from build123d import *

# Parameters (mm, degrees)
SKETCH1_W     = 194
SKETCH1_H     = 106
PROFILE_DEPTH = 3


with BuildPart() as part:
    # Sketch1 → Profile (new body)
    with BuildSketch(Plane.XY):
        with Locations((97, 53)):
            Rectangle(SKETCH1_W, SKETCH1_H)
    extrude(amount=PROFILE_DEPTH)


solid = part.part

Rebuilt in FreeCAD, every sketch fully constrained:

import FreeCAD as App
import Part
import Sketcher
from FreeCAD import Vector

doc = App.newDocument("Part")
body = doc.addObject("PartDesign::Body", "Body")

# Sketch on XY plane
sketch1 = body.newObject("Sketcher::SketchObject", "Sketch")
sketch1.AttachmentSupport = (doc.getObject("XY_Plane"), [""])
sketch1.MapMode = "FlatFace"
sketch1.addGeometry([
    Part.LineSegment(Vector(0, 106, 0), Vector(0, 0, 0)),
    Part.LineSegment(Vector(0, 0, 0), Vector(194, 0, 0)),
    Part.LineSegment(Vector(194, 0, 0), Vector(194, 106, 0)),
    Part.LineSegment(Vector(194, 106, 0), Vector(0, 106, 0)),
], False)
sketch1.addConstraint([
    Sketcher.Constraint("Coincident", 0, 2, 1, 1),
    Sketcher.Constraint("Coincident", 1, 2, 2, 1),
    Sketcher.Constraint("Coincident", 2, 2, 3, 1),
    Sketcher.Constraint("Coincident", 3, 2, 0, 1),
    Sketcher.Constraint("Vertical", 0),
    Sketcher.Constraint("Horizontal", 1),
    Sketcher.Constraint("Vertical", 2),
    Sketcher.Constraint("Horizontal", 3),
    Sketcher.Constraint("Coincident", 0, 2, -1, 1),
    Sketcher.Constraint("DistanceX", 1, 1, 1, 2, 194.0),
    Sketcher.Constraint("DistanceY", 0, 2, 0, 1, 106.0),
])
pad1 = body.newObject("PartDesign::Pad", "Pad")
pad1.Profile = sketch1
pad1.Length = 3

doc.recompute()
